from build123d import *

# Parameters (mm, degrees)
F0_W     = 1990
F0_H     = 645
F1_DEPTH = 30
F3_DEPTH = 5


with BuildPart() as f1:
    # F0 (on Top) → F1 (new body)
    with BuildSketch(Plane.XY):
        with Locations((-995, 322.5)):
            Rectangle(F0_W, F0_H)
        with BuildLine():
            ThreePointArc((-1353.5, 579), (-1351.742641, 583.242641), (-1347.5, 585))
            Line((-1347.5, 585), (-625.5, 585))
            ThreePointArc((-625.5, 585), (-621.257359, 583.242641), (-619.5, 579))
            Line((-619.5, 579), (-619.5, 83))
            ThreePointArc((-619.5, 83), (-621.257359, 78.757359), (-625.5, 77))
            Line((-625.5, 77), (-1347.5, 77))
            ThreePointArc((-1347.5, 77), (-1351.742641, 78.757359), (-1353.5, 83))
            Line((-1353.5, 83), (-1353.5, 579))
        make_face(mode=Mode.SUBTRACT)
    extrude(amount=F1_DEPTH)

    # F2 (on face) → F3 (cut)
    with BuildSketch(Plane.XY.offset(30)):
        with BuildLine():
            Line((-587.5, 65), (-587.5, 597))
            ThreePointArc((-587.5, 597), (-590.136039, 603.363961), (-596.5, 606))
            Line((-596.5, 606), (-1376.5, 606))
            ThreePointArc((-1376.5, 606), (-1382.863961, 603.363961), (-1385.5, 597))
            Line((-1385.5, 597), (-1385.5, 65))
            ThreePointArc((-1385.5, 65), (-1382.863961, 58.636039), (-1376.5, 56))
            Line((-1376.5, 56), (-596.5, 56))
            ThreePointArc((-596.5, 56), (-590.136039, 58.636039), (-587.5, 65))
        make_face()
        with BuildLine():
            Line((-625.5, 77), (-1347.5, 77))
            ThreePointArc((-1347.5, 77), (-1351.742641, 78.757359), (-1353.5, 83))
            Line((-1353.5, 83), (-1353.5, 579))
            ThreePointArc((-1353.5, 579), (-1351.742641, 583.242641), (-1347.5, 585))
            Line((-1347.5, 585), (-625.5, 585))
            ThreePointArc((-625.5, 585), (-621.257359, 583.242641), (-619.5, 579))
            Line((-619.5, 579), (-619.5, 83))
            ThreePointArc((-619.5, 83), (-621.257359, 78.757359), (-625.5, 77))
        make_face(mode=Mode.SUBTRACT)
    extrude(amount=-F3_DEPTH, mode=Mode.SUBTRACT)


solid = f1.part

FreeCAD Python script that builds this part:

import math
import FreeCAD as App
import Part
import Sketcher

V = App.Vector

doc = App.newDocument("Part")
body = doc.addObject("PartDesign::Body", "Body")

sketch1 = body.newObject("Sketcher::SketchObject", "Sketch")
sketch1.AttachmentSupport = (doc.getObject("XY_Plane"), [""])
sketch1.MapMode = "FlatFace"
sketch1.addGeometry(Part.LineSegment(V(-1990, 645, 0), V(-1990, 0, 0)), False)
sketch1.addGeometry(Part.LineSegment(V(-1990, 0, 0), V(0, 0, 0)), False)
sketch1.addGeometry(Part.LineSegment(V(0, 0, 0), V(0, 645, 0)), False)
sketch1.addGeometry(Part.LineSegment(V(0, 645, 0), V(-1990, 645, 0)), False)
sketch1.addGeometry(Part.LineSegment(V(-1354, 83, 0), V(-1354, 579, 0)), False)
sketch1.addGeometry(Part.ArcOfCircle(Part.Circle(V(-1348, 579, 0), V(0, 0, 1), 6), math.radians(90), math.radians(180)), False)
sketch1.addGeometry(Part.LineSegment(V(-1348, 585, 0), V(-626, 585, 0)), False)
sketch1.addGeometry(Part.ArcOfCircle(Part.Circle(V(-625, 579, 0), V(0, 0, 1), 6), math.radians(0), math.radians(90)), False)
sketch1.addGeometry(Part.LineSegment(V(-620, 579, 0), V(-620, 83, 0)), False)
sketch1.addGeometry(Part.ArcOfCircle(Part.Circle(V(-625, 83, 0), V(0, 0, 1), 6), math.radians(-90), math.radians(0)), False)
sketch1.addGeometry(Part.LineSegment(V(-626, 77, 0), V(-1348, 77, 0)), False)
sketch1.addGeometry(Part.ArcOfCircle(Part.Circle(V(-1348, 83, 0), V(0, 0, 1), 6), math.radians(180), math.radians(270)), False)
sketch1.addConstraint(Sketcher.Constraint("Coincident", 0, 2, 1, 1))
sketch1.addConstraint(Sketcher.Constraint("Coincident", 1, 2, 2, 1))
sketch1.addConstraint(Sketcher.Constraint("Coincident", 2, 2, 3, 1))
sketch1.addConstraint(Sketcher.Constraint("Coincident", 3, 2, 0, 1))
sketch1.addConstraint(Sketcher.Constraint("Tangent", 4, 2, 5, 2))
sketch1.addConstraint(Sketcher.Constraint("Tangent", 5, 1, 6, 1))
sketch1.addConstraint(Sketcher.Constraint("Tangent", 6, 2, 7, 2))
sketch1.addConstraint(Sketcher.Constraint("Tangent", 7, 1, 8, 1))
sketch1.addConstraint(Sketcher.Constraint("Tangent", 8, 2, 9, 2))
sketch1.addConstraint(Sketcher.Constraint("Tangent", 9, 1, 10, 1))
sketch1.addConstraint(Sketcher.Constraint("Tangent", 10, 2, 11, 2))
sketch1.addConstraint(Sketcher.Constraint("Tangent", 11, 1, 4, 1))
sketch1.addConstraint(Sketcher.Constraint("Vertical", 0))
sketch1.addConstraint(Sketcher.Constraint("Horizontal", 1))
sketch1.addConstraint(Sketcher.Constraint("Vertical", 2))
sketch1.addConstraint(Sketcher.Constraint("Horizontal", 3))
sketch1.addConstraint(Sketcher.Constraint("Vertical", 4))
sketch1.addConstraint(Sketcher.Constraint("Horizontal", 6))
sketch1.addConstraint(Sketcher.Constraint("Vertical", 8))
sketch1.addConstraint(Sketcher.Constraint("Horizontal", 10))
sketch1.addConstraint(Sketcher.Constraint("Coincident", 1, 2, -1, 1))
sketch1.addConstraint(Sketcher.Constraint("Equal", 5, 7))
sketch1.addConstraint(Sketcher.Constraint("Equal", 7, 9))
sketch1.addConstraint(Sketcher.Constraint("Equal", 9, 11))
sketch1.addConstraint(Sketcher.Constraint("Radius", 5, 5.999999))
sketch1.addConstraint(Sketcher.Constraint("DistanceX", 1, 1, 1, 2, 1990.0))
sketch1.addConstraint(Sketcher.Constraint("DistanceX", 6, 1, 6, 2, 722.0))
sketch1.addConstraint(Sketcher.Constraint("DistanceY", 0, 2, 0, 1, 645.0))
sketch1.addConstraint(Sketcher.Constraint("DistanceY", 4, 1, 4, 2, 496.0))
sketch1.addConstraint(Sketcher.Constraint("DistanceY", -1, 1, 5, 3, 579.000001))
sketch1.addConstraint(Sketcher.Constraint("DistanceX", 5, 3, -1, 1, 1347.500001))
pad1 = body.newObject("PartDesign::Pad", "Pad")
pad1.Profile = sketch1
pad1.Length = 30

sketch2 = body.newObject("Sketcher::SketchObject", "Sketch001")
sketch2.AttachmentSupport = (doc.getObject("XY_Plane"), [""])
sketch2.MapMode = "FlatFace"
sketch2.AttachmentOffset = App.Placement(V(0, 0, 30), App.Rotation())
sketch2.addGeometry(Part.LineSegment(V(-588, 65, 0), V(-588, 597, 0)), False)
sketch2.addGeometry(Part.ArcOfCircle(Part.Circle(V(-597, 597, 0), V(0, 0, 1), 9), math.radians(0), math.radians(90)), False)
sketch2.addGeometry(Part.LineSegment(V(-596, 606, 0), V(-1376, 606, 0)), False)
sketch2.addGeometry(Part.ArcOfCircle(Part.Circle(V(-1376, 597, 0), V(0, 0, 1), 9), math.radians(90), math.radians(180)), False)
sketch2.addGeometry(Part.LineSegment(V(-1386, 597, 0), V(-1386, 65, 0)), False)
sketch2.addGeometry(Part.ArcOfCircle(Part.Circle(V(-1376, 65, 0), V(0, 0, 1), 9), math.radians(-180), math.radians(-90)), False)
sketch2.addGeometry(Part.LineSegment(V(-1376, 56, 0), V(-596, 56, 0)), False)
sketch2.addGeometry(Part.ArcOfCircle(Part.Circle(V(-597, 65, 0), V(0, 0, 1), 9), math.radians(-90), math.radians(0)), False)
sketch2.addGeometry(Part.ArcOfCircle(Part.Circle(V(-625, 83, 0), V(0, 0, 1), 6), math.radians(-90), math.radians(0)), False)
sketch2.addGeometry(Part.LineSegment(V(-626, 77, 0), V(-1348, 77, 0)), False)
sketch2.addGeometry(Part.ArcOfCircle(Part.Circle(V(-1348, 83, 0), V(0, 0, 1), 6), math.radians(180), math.radians(270)), False)
sketch2.addGeometry(Part.LineSegment(V(-1354, 83, 0), V(-1354, 579, 0)), False)
sketch2.addGeometry(Part.ArcOfCircle(Part.Circle(V(-1348, 579, 0), V(0, 0, 1), 6), math.radians(90), math.radians(180)), False)
sketch2.addGeometry(Part.LineSegment(V(-1348, 585, 0), V(-626, 585, 0)), False)
sketch2.addGeometry(Part.ArcOfCircle(Part.Circle(V(-625, 579, 0), V(0, 0, 1), 6), math.radians(0), math.radians(90)), False)
sketch2.addGeometry(Part.LineSegment(V(-620, 579, 0), V(-620, 83, 0)), False)
sketch2.addConstraint(Sketcher.Constraint("Tangent", 0, 2, 1, 1))
sketch2.addConstraint(Sketcher.Constraint("Tangent", 1, 2, 2, 1))
sketch2.addConstraint(Sketcher.Constraint("Tangent", 2, 2, 3, 1))
sketch2.addConstraint(Sketcher.Constraint("Tangent", 3, 2, 4, 1))
sketch2.addConstraint(Sketcher.Constraint("Tangent", 4, 2, 5, 1))
sketch2.addConstraint(Sketcher.Constraint("Tangent", 5, 2, 6, 1))
sketch2.addConstraint(Sketcher.Constraint("Tangent", 6, 2, 7, 1))
sketch2.addConstraint(Sketcher.Constraint("Tangent", 7, 2, 0, 1))
sketch2.addConstraint(Sketcher.Constraint("Tangent", 8, 1, 9, 1))
sketch2.addConstraint(Sketcher.Constraint("Tangent", 9, 2, 10, 2))
sketch2.addConstraint(Sketcher.Constraint("Tangent", 10, 1, 11, 1))
sketch2.addConstraint(Sketcher.Constraint("Tangent", 11, 2, 12, 2))
sketch2.addConstraint(Sketcher.Constraint("Tangent", 12, 1, 13, 1))
sketch2.addConstraint(Sketcher.Constraint("Tangent", 13, 2, 14, 2))
sketch2.addConstraint(Sketcher.Constraint("Tangent", 14, 1, 15, 1))
sketch2.addConstraint(Sketcher.Constraint("Tangent", 15, 2, 8, 2))
sketch2.addConstraint(Sketcher.Constraint("Vertical", 0))
sketch2.addConstraint(Sketcher.Constraint("Horizontal", 2))
sketch2.addConstraint(Sketcher.Constraint("Vertical", 4))
sketch2.addConstraint(Sketcher.Constraint("Horizontal", 6))
sketch2.addConstraint(Sketcher.Constraint("Horizontal", 9))
sketch2.addConstraint(Sketcher.Constraint("Vertical", 11))
sketch2.addConstraint(Sketcher.Constraint("Horizontal", 13))
sketch2.addConstraint(Sketcher.Constraint("Vertical", 15))
sketch2.addConstraint(Sketcher.Constraint("Equal", 1, 3))
sketch2.addConstraint(Sketcher.Constraint("Equal", 3, 5))
sketch2.addConstraint(Sketcher.Constraint("Equal", 5, 7))
sketch2.addConstraint(Sketcher.Constraint("Equal", 8, 10))
sketch2.addConstraint(Sketcher.Constraint("Equal", 10, 12))
sketch2.addConstraint(Sketcher.Constraint("Equal", 12, 14))
sketch2.addConstraint(Sketcher.Constraint("Radius", 1, 9.0))
sketch2.addConstraint(Sketcher.Constraint("Radius", 8, 5.999999))
sketch2.addConstraint(Sketcher.Constraint("DistanceX", 2, 2, 2, 1, 780.0))
sketch2.addConstraint(Sketcher.Constraint("DistanceX", 9, 2, 9, 1, 722.0))
sketch2.addConstraint(Sketcher.Constraint("DistanceY", 0, 1, 0, 2, 532.0))
sketch2.addConstraint(Sketcher.Constraint("DistanceY", 11, 1, 11, 2, 496.0))
sketch2.addConstraint(Sketcher.Constraint("DistanceY", -1, 1, 1, 3, 597.0))
sketch2.addConstraint(Sketcher.Constraint("DistanceY", -1, 1, 8, 3, 82.999999))
sketch2.addConstraint(Sketcher.Constraint("DistanceX", 8, 3, 7, 3, 28.999999))
sketch2.addConstraint(Sketcher.Constraint("DistanceX", 1, 3, -1, 1, 596.5))
pocket1 = body.newObject("PartDesign::Pocket", "Pocket")
pocket1.Profile = sketch2
pocket1.Length = 5

doc.recompute()
